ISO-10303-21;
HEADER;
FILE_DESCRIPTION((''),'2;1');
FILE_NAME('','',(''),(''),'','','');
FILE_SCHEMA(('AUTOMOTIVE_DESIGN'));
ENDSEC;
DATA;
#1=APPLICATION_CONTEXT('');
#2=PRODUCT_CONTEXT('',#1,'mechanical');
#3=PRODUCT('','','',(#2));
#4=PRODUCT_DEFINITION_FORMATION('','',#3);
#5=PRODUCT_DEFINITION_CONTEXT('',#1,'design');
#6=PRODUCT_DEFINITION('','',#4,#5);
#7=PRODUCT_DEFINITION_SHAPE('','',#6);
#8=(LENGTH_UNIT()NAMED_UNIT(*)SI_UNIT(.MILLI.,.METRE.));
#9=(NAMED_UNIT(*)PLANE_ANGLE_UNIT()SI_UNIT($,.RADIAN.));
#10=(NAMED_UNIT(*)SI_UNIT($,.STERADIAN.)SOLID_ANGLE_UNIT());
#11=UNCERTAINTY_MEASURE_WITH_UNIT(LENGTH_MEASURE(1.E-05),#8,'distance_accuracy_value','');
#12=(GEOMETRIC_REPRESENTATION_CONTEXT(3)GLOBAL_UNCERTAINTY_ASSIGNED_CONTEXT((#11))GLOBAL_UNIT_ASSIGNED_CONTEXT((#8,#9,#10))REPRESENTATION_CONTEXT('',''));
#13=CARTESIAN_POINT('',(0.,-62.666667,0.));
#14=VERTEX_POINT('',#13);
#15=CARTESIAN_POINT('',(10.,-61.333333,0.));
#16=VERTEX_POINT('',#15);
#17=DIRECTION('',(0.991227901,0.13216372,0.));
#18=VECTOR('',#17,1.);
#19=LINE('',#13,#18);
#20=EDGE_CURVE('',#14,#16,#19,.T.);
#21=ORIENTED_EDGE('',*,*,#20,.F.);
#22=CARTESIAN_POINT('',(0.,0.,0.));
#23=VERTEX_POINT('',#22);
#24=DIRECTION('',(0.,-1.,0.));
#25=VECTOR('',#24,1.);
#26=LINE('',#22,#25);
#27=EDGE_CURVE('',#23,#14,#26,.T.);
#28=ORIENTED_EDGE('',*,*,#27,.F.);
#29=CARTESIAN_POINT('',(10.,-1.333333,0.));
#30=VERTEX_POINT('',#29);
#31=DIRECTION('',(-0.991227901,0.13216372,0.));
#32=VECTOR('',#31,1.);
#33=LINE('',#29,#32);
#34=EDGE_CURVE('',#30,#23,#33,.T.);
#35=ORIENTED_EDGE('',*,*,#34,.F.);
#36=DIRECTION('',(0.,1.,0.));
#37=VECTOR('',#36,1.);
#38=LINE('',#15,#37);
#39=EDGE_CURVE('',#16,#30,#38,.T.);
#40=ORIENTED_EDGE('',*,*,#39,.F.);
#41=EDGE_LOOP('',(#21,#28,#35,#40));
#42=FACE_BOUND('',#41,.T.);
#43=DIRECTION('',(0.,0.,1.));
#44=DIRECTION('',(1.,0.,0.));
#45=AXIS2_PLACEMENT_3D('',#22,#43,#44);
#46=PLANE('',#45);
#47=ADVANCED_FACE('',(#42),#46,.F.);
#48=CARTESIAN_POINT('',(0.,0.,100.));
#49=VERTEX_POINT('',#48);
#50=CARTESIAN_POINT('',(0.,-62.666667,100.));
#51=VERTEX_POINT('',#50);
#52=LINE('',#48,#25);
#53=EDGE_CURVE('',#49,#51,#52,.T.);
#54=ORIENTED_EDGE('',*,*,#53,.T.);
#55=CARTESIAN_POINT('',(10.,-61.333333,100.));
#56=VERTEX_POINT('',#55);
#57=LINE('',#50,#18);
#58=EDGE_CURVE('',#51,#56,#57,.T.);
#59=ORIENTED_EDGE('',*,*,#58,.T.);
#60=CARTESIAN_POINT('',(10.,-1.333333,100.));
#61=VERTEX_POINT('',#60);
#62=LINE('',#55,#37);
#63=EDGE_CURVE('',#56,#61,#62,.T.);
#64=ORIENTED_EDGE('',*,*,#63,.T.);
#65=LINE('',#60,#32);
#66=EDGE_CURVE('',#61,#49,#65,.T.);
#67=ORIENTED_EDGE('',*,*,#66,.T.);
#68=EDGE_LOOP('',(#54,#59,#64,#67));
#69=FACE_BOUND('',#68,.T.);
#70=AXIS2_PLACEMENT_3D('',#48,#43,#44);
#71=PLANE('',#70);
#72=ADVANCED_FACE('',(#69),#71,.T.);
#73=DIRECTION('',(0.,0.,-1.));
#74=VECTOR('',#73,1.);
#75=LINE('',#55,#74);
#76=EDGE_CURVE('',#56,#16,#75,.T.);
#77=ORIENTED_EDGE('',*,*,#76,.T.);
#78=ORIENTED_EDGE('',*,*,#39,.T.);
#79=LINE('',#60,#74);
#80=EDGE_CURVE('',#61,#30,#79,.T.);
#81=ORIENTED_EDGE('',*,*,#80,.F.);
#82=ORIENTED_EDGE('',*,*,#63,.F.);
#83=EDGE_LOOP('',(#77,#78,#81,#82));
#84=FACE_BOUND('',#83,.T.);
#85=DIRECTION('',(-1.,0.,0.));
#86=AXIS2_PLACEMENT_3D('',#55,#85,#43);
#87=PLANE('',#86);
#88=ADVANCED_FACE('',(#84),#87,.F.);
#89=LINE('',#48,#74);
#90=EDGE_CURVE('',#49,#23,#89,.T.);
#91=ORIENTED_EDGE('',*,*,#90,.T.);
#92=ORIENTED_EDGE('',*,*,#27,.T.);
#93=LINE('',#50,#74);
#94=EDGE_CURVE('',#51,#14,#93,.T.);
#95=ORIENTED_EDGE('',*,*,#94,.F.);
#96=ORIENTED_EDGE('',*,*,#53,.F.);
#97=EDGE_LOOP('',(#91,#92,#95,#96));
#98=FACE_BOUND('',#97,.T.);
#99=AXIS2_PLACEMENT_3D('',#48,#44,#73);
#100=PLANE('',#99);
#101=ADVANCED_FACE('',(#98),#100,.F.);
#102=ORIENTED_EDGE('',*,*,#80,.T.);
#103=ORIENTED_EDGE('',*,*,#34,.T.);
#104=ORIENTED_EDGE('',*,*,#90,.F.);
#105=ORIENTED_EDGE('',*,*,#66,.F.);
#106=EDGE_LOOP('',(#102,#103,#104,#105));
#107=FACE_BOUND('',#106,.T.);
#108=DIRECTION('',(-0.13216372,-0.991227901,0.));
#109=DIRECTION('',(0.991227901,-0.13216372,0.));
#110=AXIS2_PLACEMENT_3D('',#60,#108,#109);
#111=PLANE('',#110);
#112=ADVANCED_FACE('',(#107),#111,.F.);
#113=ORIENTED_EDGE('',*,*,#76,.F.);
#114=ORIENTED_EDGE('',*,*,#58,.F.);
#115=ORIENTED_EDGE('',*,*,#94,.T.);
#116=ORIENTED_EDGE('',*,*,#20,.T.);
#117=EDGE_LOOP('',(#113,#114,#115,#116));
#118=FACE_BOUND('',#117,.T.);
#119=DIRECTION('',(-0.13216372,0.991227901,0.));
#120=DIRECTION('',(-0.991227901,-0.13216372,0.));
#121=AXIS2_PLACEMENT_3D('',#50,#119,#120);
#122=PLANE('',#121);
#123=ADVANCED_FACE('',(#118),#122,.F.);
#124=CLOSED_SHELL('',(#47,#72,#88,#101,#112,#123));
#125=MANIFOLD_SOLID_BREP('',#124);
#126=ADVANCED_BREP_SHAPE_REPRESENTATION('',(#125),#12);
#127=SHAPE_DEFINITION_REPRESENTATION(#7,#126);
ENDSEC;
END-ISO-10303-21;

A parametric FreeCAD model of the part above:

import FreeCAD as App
import Part
import Sketcher
Q = App.Units.Quantity

doc = App.newDocument("Part")
body = doc.addObject("PartDesign::Body", "Body")

sketch1 = doc.addObject("Sketcher::SketchObject", "Sketch")
body.addObject(sketch1)
sketch1.AttachmentSupport = (doc.XY_Plane, [""])
sketch1.MapMode = "FlatFace"
sketch1.addGeometry(Part.LineSegment(App.Vector(10, -1, 0), App.Vector(0, 0, 0)), False)
sketch1.addGeometry(Part.LineSegment(App.Vector(0, 0, 0), App.Vector(0, -63, 0)), False)
sketch1.addGeometry(Part.LineSegment(App.Vector(0, -63, 0), App.Vector(10, -61, 0)), False)
sketch1.addGeometry(Part.LineSegment(App.Vector(10, -61, 0), App.Vector(10, -1, 0)), False)
sketch1.addConstraint(Sketcher.Constraint("Coincident", 0, 2, 1, 1))
sketch1.addConstraint(Sketcher.Constraint("Coincident", 1, 2, 2, 1))
sketch1.addConstraint(Sketcher.Constraint("Coincident", 2, 2, 3, 1))
sketch1.addConstraint(Sketcher.Constraint("Coincident", 3, 2, 0, 1))
sketch1.addConstraint(Sketcher.Constraint("Vertical", 1))
sketch1.addConstraint(Sketcher.Constraint("Vertical", 3))
sketch1.addConstraint(Sketcher.Constraint("Coincident", 0, 2, -1, 1))
sketch1.addConstraint(Sketcher.Constraint("Equal", 0, 2))
sketch1.addConstraint(Sketcher.Constraint("DistanceY", 3, 1, 3, 2, Q("60 mm")))
sketch1.addConstraint(Sketcher.Constraint("DistanceX", -1, 1, 2, 2, Q("10 mm")))
sketch1.addConstraint(Sketcher.Constraint("DistanceY", 1, 2, 1, 1, Q("62.666667 mm")))
pad1 = doc.addObject("PartDesign::Pad", "Pad")
body.addObject(pad1)
pad1.Profile = sketch1
pad1.Length = 100

doc.recompute()
